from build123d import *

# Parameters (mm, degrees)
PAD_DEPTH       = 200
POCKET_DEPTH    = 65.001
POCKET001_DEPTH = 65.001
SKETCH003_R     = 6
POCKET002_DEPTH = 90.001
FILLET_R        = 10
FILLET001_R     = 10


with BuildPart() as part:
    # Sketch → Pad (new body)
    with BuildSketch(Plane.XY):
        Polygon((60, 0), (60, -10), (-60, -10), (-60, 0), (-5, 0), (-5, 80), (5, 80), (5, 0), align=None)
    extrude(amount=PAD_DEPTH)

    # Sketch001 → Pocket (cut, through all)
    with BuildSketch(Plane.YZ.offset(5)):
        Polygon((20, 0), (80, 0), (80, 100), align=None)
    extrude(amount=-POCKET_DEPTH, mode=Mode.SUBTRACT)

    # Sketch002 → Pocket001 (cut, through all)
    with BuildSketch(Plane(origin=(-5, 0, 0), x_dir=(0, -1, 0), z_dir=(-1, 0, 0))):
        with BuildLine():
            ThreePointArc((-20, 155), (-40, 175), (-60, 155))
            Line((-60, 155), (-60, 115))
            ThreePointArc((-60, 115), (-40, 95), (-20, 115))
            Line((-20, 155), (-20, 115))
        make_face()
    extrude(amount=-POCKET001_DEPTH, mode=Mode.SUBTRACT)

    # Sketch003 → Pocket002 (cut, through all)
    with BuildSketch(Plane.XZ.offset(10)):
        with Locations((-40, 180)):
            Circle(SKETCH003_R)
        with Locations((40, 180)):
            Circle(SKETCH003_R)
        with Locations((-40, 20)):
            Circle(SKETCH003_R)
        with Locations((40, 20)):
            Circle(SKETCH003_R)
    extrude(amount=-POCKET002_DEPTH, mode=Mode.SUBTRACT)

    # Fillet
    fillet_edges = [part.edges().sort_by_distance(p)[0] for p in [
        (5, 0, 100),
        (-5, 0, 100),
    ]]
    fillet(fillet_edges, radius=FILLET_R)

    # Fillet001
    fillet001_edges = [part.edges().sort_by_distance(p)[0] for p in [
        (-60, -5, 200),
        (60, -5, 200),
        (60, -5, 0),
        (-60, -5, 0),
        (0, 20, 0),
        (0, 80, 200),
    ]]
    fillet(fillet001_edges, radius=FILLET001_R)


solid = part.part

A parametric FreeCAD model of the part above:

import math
import FreeCAD as App
import Part
import Sketcher

V = App.Vector
Q = App.Units.Quantity


def edges_at(feature, points):
    """Names of the edges that pass closest to the given points."""
    edges = feature.Shape.Edges
    near = lambda p: min(range(len(edges)), key=lambda i: edges[i].distToShape(Part.Vertex(*p))[0])
    return sorted({f"Edge{near(p) + 1}" for p in points})


def add_polygon(sketch, points):
    """Adds a closed chain of lines whose ends are joined by coincident constraints."""
    first, n = sketch.GeometryCount, len(points)
    for a, b in zip(points, points[1:] + points[:1]):
        sketch.addGeometry(Part.LineSegment(App.Vector(*a, 0), App.Vector(*b, 0)), False)
    for i in range(n):
        sketch.addConstraint(Sketcher.Constraint("Coincident", first + i, 2, first + (i + 1) % n, 1))

doc = App.newDocument("Part")
body = doc.addObject("PartDesign::Body", "Body")

# Sketch on XY plane
sketch1 = body.newObject("Sketcher::SketchObject", "Sketch")
sketch1.AttachmentSupport = (doc.getObject("XY_Plane"), [""])
sketch1.MapMode = "FlatFace"
add_polygon(sketch1, [(60, -10), (60, 0), (5, 0), (5, 80), (-5, 80), (-5, 0), (-60, 0), (-60, -10)])  # lines 0-7
sketch1.addConstraint([
    Sketcher.Constraint("Vertical", 0),
    Sketcher.Constraint("Horizontal", 1),
    Sketcher.Constraint("Vertical", 2),
    Sketcher.Constraint("Horizontal", 3),
    Sketcher.Constraint("Vertical", 4),
    Sketcher.Constraint("Horizontal", 5),
    Sketcher.Constraint("Vertical", 6),
    Sketcher.Constraint("Horizontal", 7),
    Sketcher.Constraint("Symmetric", 1, 2, 4, 2, -1, 1),
    Sketcher.Constraint("Symmetric", 0, 2, 5, 2, -2),
    Sketcher.Constraint("Equal", 3, 0),
    Sketcher.Constraint("DistanceX", 1, 2, 1, 1, Q("55 mm")),
    Sketcher.Constraint("DistanceX", 3, 2, 3, 1, Q("10 mm")),
    Sketcher.Constraint("DistanceY", 2, 1, 2, 2, Q("80 mm")),
])
pad1 = body.newObject("PartDesign::Pad", "Pad")
pad1.Profile = sketch1
pad1.Length = 200

# Sketch on YZ plane
sketch2 = body.newObject("Sketcher::SketchObject", "Sketch001")
sketch2.AttachmentSupport = (doc.getObject("YZ_Plane"), [""])
sketch2.MapMode = "FlatFace"
sketch2.AttachmentOffset = App.Placement(V(0, 0, 5), App.Rotation())
add_polygon(sketch2, [(20, 0), (80, 0), (80, 100)])  # lines 0-2
sketch2.addConstraint([
    Sketcher.Constraint("Horizontal", 0),
    Sketcher.Constraint("Vertical", 1),
    Sketcher.Constraint("PointOnObject", 0, 2, -1),
    Sketcher.Constraint("DistanceX", 0, 1, 0, 2, Q("60 mm")),
    Sketcher.Constraint("DistanceY", 1, 1, 1, 2, Q("100 mm")),
    Sketcher.Constraint("DistanceX", -1, 1, 0, 2, Q("80 mm")),
])
pocket1 = body.newObject("PartDesign::Pocket", "Pocket")
pocket1.Profile = sketch2
pocket1.Type = "ThroughAll"

# Sketch on YZ plane
sketch3 = body.newObject("Sketcher::SketchObject", "Sketch002")
sketch3.AttachmentSupport = (doc.getObject("YZ_Plane"), [""])
sketch3.MapMode = "FlatFace"
sketch3.AttachmentOffset = App.Placement(V(0, 0, -5), App.Rotation())
sketch3.addGeometry([
    Part.ArcOfCircle(Part.Circle(V(40, 155, 0), V(0, 0, 1), 20), math.radians(0), math.radians(180)),
    Part.LineSegment(V(60, 155, 0), V(60, 115, 0)),
    Part.ArcOfCircle(Part.Circle(V(40, 115, 0), V(0, 0, 1), 20), math.radians(180), math.radians(360)),
    Part.LineSegment(V(20, 115, 0), V(20, 155, 0)),
], False)
sketch3.addConstraint([
    Sketcher.Constraint("Tangent", 0, 1, 1, 1),
    Sketcher.Constraint("Tangent", 1, 2, 2, 2),
    Sketcher.Constraint("Tangent", 2, 1, 3, 1),
    Sketcher.Constraint("Tangent", 3, 2, 0, 2),
    Sketcher.Constraint("Vertical", 1),
    Sketcher.Constraint("Vertical", 3),
    Sketcher.Constraint("Radius", 0, Q("20 mm")),
    Sketcher.Constraint("DistanceY", 1, 2, 1, 1, Q("40 mm")),
    Sketcher.Constraint("DistanceX", -1, 1, 0, 3, Q("40 mm")),
    Sketcher.Constraint("DistanceY", -1, 1, 0, 3, Q("155 mm")),
])
pocket2 = body.newObject("PartDesign::Pocket", "Pocket001")
pocket2.Profile = sketch3
pocket2.Type = "ThroughAll"
pocket2.Reversed = True

# Sketch on XZ plane
sketch4 = body.newObject("Sketcher::SketchObject", "Sketch003")
sketch4.AttachmentSupport = (doc.getObject("XZ_Plane"), [""])
sketch4.MapMode = "FlatFace"
sketch4.AttachmentOffset = App.Placement(V(0, 0, 10), App.Rotation())
sketch4.addGeometry([
    Part.Circle(V(-40, 180, 0), V(0, 0, 1), 6),
    Part.Circle(V(40, 180, 0), V(0, 0, 1), 6),
    Part.Circle(V(-40, 20, 0), V(0, 0, 1), 6),
    Part.Circle(V(40, 20, 0), V(0, 0, 1), 6),
], False)
sketch4.addConstraint([
    Sketcher.Constraint("Equal", 0, 1),
    Sketcher.Constraint("Equal", 1, 2),
    Sketcher.Constraint("Equal", 2, 3),
    Sketcher.Constraint("Symmetric", 0, 3, 1, 3, -2),
    Sketcher.Constraint("Symmetric", 2, 3, 3, 3, -2),
    Sketcher.Constraint("Vertical", 0, 3, 2, 3),
    Sketcher.Constraint("Diameter", 0, Q("12 mm")),
    Sketcher.Constraint("DistanceX", 0, 3, -1, 1, Q("40 mm")),
    Sketcher.Constraint("DistanceY", -1, 1, 0, 3, Q("180 mm")),
    Sketcher.Constraint("DistanceY", -1, 1, 2, 3, Q("20 mm")),
])
pocket3 = body.newObject("PartDesign::Pocket", "Pocket002")
pocket3.Profile = sketch4
pocket3.Type = "ThroughAll"
doc.recompute()

fillet = body.newObject("PartDesign::Fillet", "Fillet")
fillet.Base = (pocket3, edges_at(pocket3, [(5, 0, 100), (-5, 0, 100)]))
fillet.Radius = 10
doc.recompute()

fillet2 = body.newObject("PartDesign::Fillet", "Fillet001")
fillet2.Base = (fillet, edges_at(fillet, [
    (-60, -5, 200),
    (60, -5, 200),
    (60, -5, 0),
    (-60, -5, 0),
    (0, 20, 0),
    (0, 80, 200),
]))
fillet2.Radius = 10

doc.recompute()
